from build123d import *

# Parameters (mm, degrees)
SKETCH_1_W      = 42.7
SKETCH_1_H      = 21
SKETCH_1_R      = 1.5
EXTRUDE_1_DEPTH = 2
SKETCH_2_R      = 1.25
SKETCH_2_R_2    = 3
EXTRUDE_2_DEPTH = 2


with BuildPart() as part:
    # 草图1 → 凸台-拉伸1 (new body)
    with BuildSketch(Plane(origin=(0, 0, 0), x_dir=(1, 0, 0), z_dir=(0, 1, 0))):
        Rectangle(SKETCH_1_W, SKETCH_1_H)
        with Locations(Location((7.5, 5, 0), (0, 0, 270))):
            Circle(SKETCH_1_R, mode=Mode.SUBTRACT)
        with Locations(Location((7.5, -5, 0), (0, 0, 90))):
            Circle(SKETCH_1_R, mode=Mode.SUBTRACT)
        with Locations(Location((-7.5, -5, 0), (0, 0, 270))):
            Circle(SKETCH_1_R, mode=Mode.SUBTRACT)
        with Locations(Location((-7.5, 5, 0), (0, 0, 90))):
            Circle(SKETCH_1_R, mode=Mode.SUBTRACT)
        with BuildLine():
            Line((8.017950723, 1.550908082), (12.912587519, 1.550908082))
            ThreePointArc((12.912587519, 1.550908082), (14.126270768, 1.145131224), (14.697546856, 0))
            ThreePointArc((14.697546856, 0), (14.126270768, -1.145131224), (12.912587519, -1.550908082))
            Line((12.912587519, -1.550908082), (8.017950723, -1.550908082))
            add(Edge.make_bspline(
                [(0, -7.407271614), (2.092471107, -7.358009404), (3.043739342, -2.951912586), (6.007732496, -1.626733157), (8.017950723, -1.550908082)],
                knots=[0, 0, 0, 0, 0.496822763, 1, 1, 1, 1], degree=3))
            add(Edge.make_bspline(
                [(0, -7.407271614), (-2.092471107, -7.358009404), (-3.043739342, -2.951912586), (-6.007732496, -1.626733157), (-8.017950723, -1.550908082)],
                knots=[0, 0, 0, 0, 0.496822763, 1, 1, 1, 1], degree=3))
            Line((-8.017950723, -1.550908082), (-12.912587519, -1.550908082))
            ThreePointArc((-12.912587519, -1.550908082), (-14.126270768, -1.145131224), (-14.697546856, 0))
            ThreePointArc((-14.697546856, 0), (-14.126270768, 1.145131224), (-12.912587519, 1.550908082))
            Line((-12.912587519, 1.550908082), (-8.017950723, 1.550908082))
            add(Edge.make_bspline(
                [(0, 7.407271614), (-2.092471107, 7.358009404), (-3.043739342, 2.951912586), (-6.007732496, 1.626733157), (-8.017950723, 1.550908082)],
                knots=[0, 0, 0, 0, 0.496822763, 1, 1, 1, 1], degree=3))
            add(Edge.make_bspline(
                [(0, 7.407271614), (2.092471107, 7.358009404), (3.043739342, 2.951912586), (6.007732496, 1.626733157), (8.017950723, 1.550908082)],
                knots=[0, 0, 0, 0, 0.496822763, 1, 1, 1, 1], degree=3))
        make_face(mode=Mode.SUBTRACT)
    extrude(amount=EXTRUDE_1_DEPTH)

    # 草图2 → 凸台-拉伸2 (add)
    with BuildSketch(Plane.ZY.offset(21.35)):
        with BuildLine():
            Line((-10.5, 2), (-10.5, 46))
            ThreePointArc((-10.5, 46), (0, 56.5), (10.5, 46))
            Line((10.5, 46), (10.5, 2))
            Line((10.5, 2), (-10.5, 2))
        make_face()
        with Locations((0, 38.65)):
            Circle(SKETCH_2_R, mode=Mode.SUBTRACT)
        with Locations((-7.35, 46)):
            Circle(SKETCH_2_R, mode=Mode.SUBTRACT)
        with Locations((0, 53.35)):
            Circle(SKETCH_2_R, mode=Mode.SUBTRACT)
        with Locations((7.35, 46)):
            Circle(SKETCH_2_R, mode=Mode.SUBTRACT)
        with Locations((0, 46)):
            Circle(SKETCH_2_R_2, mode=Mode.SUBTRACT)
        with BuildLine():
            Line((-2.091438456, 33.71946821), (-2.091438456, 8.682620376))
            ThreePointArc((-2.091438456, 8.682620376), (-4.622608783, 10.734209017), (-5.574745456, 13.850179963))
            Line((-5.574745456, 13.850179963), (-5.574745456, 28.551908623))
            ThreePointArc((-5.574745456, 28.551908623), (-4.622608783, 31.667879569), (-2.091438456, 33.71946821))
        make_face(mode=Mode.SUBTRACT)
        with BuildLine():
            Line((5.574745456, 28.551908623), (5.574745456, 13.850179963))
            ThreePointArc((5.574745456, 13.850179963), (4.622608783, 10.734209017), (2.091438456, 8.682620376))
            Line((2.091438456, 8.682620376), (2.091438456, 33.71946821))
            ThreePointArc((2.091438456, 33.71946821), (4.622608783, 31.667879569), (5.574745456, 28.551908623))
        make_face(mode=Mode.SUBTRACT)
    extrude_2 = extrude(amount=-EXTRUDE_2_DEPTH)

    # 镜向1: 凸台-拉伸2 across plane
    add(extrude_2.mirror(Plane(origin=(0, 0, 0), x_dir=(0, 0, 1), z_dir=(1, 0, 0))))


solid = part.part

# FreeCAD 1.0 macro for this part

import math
import FreeCAD as App
import Part
import Sketcher

V = App.Vector
Q = App.Units.Quantity

doc = App.newDocument("Part")
body = doc.addObject("PartDesign::Body", "Body")

sketch1 = body.newObject("Sketcher::SketchObject", "Sketch")
sketch1.AttachmentSupport = (doc.getObject("XZ_Plane"), [""])
sketch1.MapMode = "FlatFace"
sketch1.addGeometry(Part.LineSegment(V(-21.35, -10.5, 0), V(-21.35, 10.5, 0)), False)
sketch1.addGeometry(Part.LineSegment(V(-21.35, 10.5, 0), V(21.35, 10.5, 0)), False)
sketch1.addGeometry(Part.LineSegment(V(21.35, 10.5, 0), V(21.35, -10.5, 0)), False)
sketch1.addGeometry(Part.LineSegment(V(21.35, -10.5, 0), V(-21.35, -10.5, 0)), False)
sketch1.addGeometry(Part.Circle(V(-7.5, 5, 0), V(0, 0, 1), 1.5), False)
sketch1.addGeometry(Part.Circle(V(7.5, 5, 0), V(0, 0, 1), 1.5), False)
sketch1.addGeometry(Part.BSplineCurve([V(0, -7.407272, 0), V(2.092471, -7.358009, 0), V(3.043739, -2.951913, 0), V(6.007732, -1.626733, 0), V(8.017951, -1.550908, 0)], [4, 1, 4], [0, 0.496822763, 1], False, 3, [1, 1, 1, 1, 1], False), False)
sketch1.addGeometry(Part.LineSegment(V(8.017951, -1.550908, 0), V(12.912588, -1.550908, 0)), False)
sketch1.addGeometry(Part.ArcOfCircle(Part.Circle(V(13.029613, 0.117026, 0), V(0, 0, 1), 1.672034), math.radians(-94.013412), math.radians(-4.013412)), False)
sketch1.addGeometry(Part.ArcOfCircle(Part.Circle(V(13.029613, -0.117026, 0), V(0, 0, 1), 1.672034), math.radians(4.013412), math.radians(94.013412)), False)
sketch1.addGeometry(Part.LineSegment(V(12.912588, 1.550908, 0), V(8.017951, 1.550908, 0)), False)
sketch1.addGeometry(Part.BSplineCurve([V(0, 7.407272, 0), V(2.092471, 7.358009, 0), V(3.043739, 2.951913, 0), V(6.007732, 1.626733, 0), V(8.017951, 1.550908, 0)], [4, 1, 4], [0, 0.496822763, 1], False, 3, [1, 1, 1, 1, 1], False), False)
sketch1.addGeometry(Part.BSplineCurve([V(0, 7.407272, 0), V(-2.092471, 7.358009, 0), V(-3.043739, 2.951913, 0), V(-6.007732, 1.626733, 0), V(-8.017951, 1.550908, 0)], [4, 1, 4], [0, 0.496822763, 1], False, 3, [1, 1, 1, 1, 1], False), False)
sketch1.addGeometry(Part.LineSegment(V(-8.017951, 1.550908, 0), V(-12.912588, 1.550908, 0)), False)
sketch1.addGeometry(Part.ArcOfCircle(Part.Circle(V(-13.029613, -0.117026, 0), V(0, 0, 1), 1.672034), math.radians(85.986588), math.radians(175.986588)), False)
sketch1.addGeometry(Part.ArcOfCircle(Part.Circle(V(-13.029613, 0.117026, 0), V(0, 0, 1), 1.672034), math.radians(-175.986588), math.radians(-85.986588)), False)
sketch1.addGeometry(Part.LineSegment(V(-12.912588, -1.550908, 0), V(-8.017951, -1.550908, 0)), False)
sketch1.addGeometry(Part.BSplineCurve([V(0, -7.407272, 0), V(-2.092471, -7.358009, 0), V(-3.043739, -2.951913, 0), V(-6.007732, -1.626733, 0), V(-8.017951, -1.550908, 0)], [4, 1, 4], [0, 0.496822763, 1], False, 3, [1, 1, 1, 1, 1], False), False)
sketch1.addGeometry(Part.Circle(V(-7.5, -5, 0), V(0, 0, 1), 1.5), False)
sketch1.addGeometry(Part.Circle(V(7.5, -5, 0), V(0, 0, 1), 1.5), False)
sketch1.addConstraint(Sketcher.Constraint("Block", 6))
sketch1.addConstraint(Sketcher.Constraint("Block", 11))
sketch1.addConstraint(Sketcher.Constraint("Block", 12))
sketch1.addConstraint(Sketcher.Constraint("Block", 17))
sketch1.addConstraint(Sketcher.Constraint("Coincident", 0, 2, 1, 1))
sketch1.addConstraint(Sketcher.Constraint("Coincident", 1, 2, 2, 1))
sketch1.addConstraint(Sketcher.Constraint("Coincident", 2, 2, 3, 1))
sketch1.addConstraint(Sketcher.Constraint("Coincident", 3, 2, 0, 1))
sketch1.addConstraint(Sketcher.Constraint("Coincident", 6, 2, 7, 1))
sketch1.addConstraint(Sketcher.Constraint("Coincident", 7, 2, 8, 1))
sketch1.addConstraint(Sketcher.Constraint("Coincident", 8, 2, 9, 1))
sketch1.addConstraint(Sketcher.Constraint("Coincident", 9, 2, 10, 1))
sketch1.addConstraint(Sketcher.Constraint("Coincident", 10, 2, 11, 2))
sketch1.addConstraint(Sketcher.Constraint("Coincident", 12, 2, 13, 1))
sketch1.addConstraint(Sketcher.Constraint("Coincident", 13, 2, 14, 1))
sketch1.addConstraint(Sketcher.Constraint("Coincident", 14, 2, 15, 1))
sketch1.addConstraint(Sketcher.Constraint("Coincident", 15, 2, 16, 1))
sketch1.addConstraint(Sketcher.Constraint("Coincident", 16, 2, 17, 2))
sketch1.addConstraint(Sketcher.Constraint("Vertical", 0))
sketch1.addConstraint(Sketcher.Constraint("Horizontal", 1))
sketch1.addConstraint(Sketcher.Constraint("Vertical", 2))
sketch1.addConstraint(Sketcher.Constraint("Horizontal", 3))
sketch1.addConstraint(Sketcher.Constraint("Horizontal", 7))
sketch1.addConstraint(Sketcher.Constraint("Horizontal", 10))
sketch1.addConstraint(Sketcher.Constraint("Horizontal", 13))
sketch1.addConstraint(Sketcher.Constraint("Horizontal", 16))
sketch1.addConstraint(Sketcher.Constraint("Equal", 4, 5))
sketch1.addConstraint(Sketcher.Constraint("Equal", 8, 9))
sketch1.addConstraint(Sketcher.Constraint("Equal", 9, 14))
sketch1.addConstraint(Sketcher.Constraint("Equal", 14, 15))
sketch1.addConstraint(Sketcher.Constraint("Equal", 5, 18))
sketch1.addConstraint(Sketcher.Constraint("Equal", 18, 19))
sketch1.addConstraint(Sketcher.Constraint("Symmetric", 8, 3, 14, 3, -1, 1))
sketch1.addConstraint(Sketcher.Constraint("Symmetric", 9, 3, 15, 3, -1, 1))
sketch1.addConstraint(Sketcher.Constraint("Symmetric", 5, 3, 18, 3, -1, 1))
sketch1.addConstraint(Sketcher.Constraint("Symmetric", 4, 3, 19, 3, -1, 1))
sketch1.addConstraint(Sketcher.Constraint("Symmetric", 0, 2, 2, 2, -1, 1))
sketch1.addConstraint(Sketcher.Constraint("Symmetric", 4, 3, 5, 3, -2))
sketch1.addConstraint(Sketcher.Constraint("Symmetric", 9, 3, 14, 3, -2))
sketch1.addConstraint(Sketcher.Constraint("Diameter", 4, Q("3 mm")))
sketch1.addConstraint(Sketcher.Constraint("DistanceY", 0, 1, 0, 2, Q("21 mm")))
sketch1.addConstraint(Sketcher.Constraint("DistanceX", 1, 1, 1, 2, Q("42.7 mm")))
sketch1.addConstraint(Sketcher.Constraint("DistanceY", -1, 1, 4, 3, Q("5 mm")))
sketch1.addConstraint(Sketcher.Constraint("DistanceX", 4, 3, 5, 3, Q("15 mm")))
sketch1.addConstraint(Sketcher.Constraint("Radius", 8, Q("1.672034 mm")))
sketch1.addConstraint(Sketcher.Constraint("DistanceX", 7, 1, 7, 2, Q("4.894637 mm")))
sketch1.addConstraint(Sketcher.Constraint("DistanceY", 9, 3, 8, 3, Q("0.234051 mm")))
pad1 = body.newObject("PartDesign::Pad", "Pad")
pad1.Profile = sketch1
pad1.Length = 2
pad1.Reversed = True

sketch2 = body.newObject("Sketcher::SketchObject", "Sketch001")
sketch2.AttachmentSupport = (doc.getObject("YZ_Plane"), [""])
sketch2.MapMode = "FlatFace"
sketch2.AttachmentOffset = App.Placement(V(0, 0, -21.35), App.Rotation())
sketch2.addGeometry(Part.LineSegment(V(46, -10.5, 0), V(2, -10.5, 0)), False)
sketch2.addGeometry(Part.LineSegment(V(2, -10.5, 0), V(2, 10.5, 0)), False)
sketch2.addGeometry(Part.LineSegment(V(2, 10.5, 0), V(46, 10.5, 0)), False)
sketch2.addGeometry(Part.ArcOfCircle(Part.Circle(V(46, 0, 0), V(0, 0, 1), 10.5), math.radians(-90), math.radians(90)), False)
sketch2.addGeometry(Part.LineSegment(V(28.6, 5.6, 0), V(13.9, 5.6, 0)), False)
sketch2.addGeometry(Part.ArcOfCircle(Part.Circle(V(13.9, 0, 0), V(0, 0, 1), 5.6), math.radians(90), math.radians(158)), False)
sketch2.addGeometry(Part.LineSegment(V(8.7, 2.1, 0), V(33.7, 2.1, 0)), False)
sketch2.addGeometry(Part.ArcOfCircle(Part.Circle(V(28.6, 0, 0), V(0, 0, 1), 5.6), math.radians(22), math.radians(90)), False)
sketch2.addGeometry(Part.LineSegment(V(33.7, -2.1, 0), V(8.7, -2.1, 0)), False)
sketch2.addGeometry(Part.ArcOfCircle(Part.Circle(V(13.9, 0, 0), V(0, 0, 1), 5.6), math.radians(-158), math.radians(-90)), False)
sketch2.addGeometry(Part.LineSegment(V(13.9, -5.6, 0), V(28.6, -5.6, 0)), False)
sketch2.addGeometry(Part.ArcOfCircle(Part.Circle(V(28.6, 0, 0), V(0, 0, 1), 5.6), math.radians(-90), math.radians(-22)), False)
sketch2.addGeometry(Part.Circle(V(46, 7.3, 0), V(0, 0, 1), 1.2), False)
sketch2.addGeometry(Part.Circle(V(38.6, 0, 0), V(0, 0, 1), 1.2), False)
sketch2.addGeometry(Part.Circle(V(46, 0, 0), V(0, 0, 1), 3), False)
sketch2.addGeometry(Part.Circle(V(53.4, 0, 0), V(0, 0, 1), 1.2), False)
sketch2.addGeometry(Part.Circle(V(46, -7.3, 0), V(0, 0, 1), 1.2), False)
sketch2.addConstraint(Sketcher.Constraint("Coincident", 0, 2, 1, 1))
sketch2.addConstraint(Sketcher.Constraint("Coincident", 1, 2, 2, 1))
sketch2.addConstraint(Sketcher.Constraint("Tangent", 2, 2, 3, 2))
sketch2.addConstraint(Sketcher.Constraint("Tangent", 3, 1, 0, 1))
sketch2.addConstraint(Sketcher.Constraint("Tangent", 4, 2, 5, 1))
sketch2.addConstraint(Sketcher.Constraint("Coincident", 5, 2, 6, 1))
sketch2.addConstraint(Sketcher.Constraint("Coincident", 6, 2, 7, 1))
sketch2.addConstraint(Sketcher.Constraint("Tangent", 7, 2, 4, 1))
sketch2.addConstraint(Sketcher.Constraint("Coincident", 8, 2, 9, 1))
sketch2.addConstraint(Sketcher.Constraint("Tangent", 9, 2, 10, 1))
sketch2.addConstraint(Sketcher.Constraint("Tangent", 10, 2, 11, 1))
sketch2.addConstraint(Sketcher.Constraint("Coincident", 11, 2, 8, 1))
sketch2.addConstraint(Sketcher.Constraint("Horizontal", 0))
sketch2.addConstraint(Sketcher.Constraint("Vertical", 1))
sketch2.addConstraint(Sketcher.Constraint("Horizontal", 2))
sketch2.addConstraint(Sketcher.Constraint("Horizontal", 4))
sketch2.addConstraint(Sketcher.Constraint("Horizontal", 6))
sketch2.addConstraint(Sketcher.Constraint("Horizontal", 8))
sketch2.addConstraint(Sketcher.Constraint("Horizontal", 10))
sketch2.addConstraint(Sketcher.Constraint("Coincident", 9, 3, 5, 3))
sketch2.addConstraint(Sketcher.Constraint("Coincident", 11, 3, 7, 3))
sketch2.addConstraint(Sketcher.Constraint("Coincident", 14, 3, 3, 3))
sketch2.addConstraint(Sketcher.Constraint("Equal", 5, 7))
sketch2.addConstraint(Sketcher.Constraint("Equal", 7, 9))
sketch2.addConstraint(Sketcher.Constraint("Equal", 12, 13))
sketch2.addConstraint(Sketcher.Constraint("Equal", 13, 15))
sketch2.addConstraint(Sketcher.Constraint("Equal", 15, 16))
sketch2.addConstraint(Sketcher.Constraint("Symmetric", 12, 3, 16, 3, -1))
sketch2.addConstraint(Sketcher.Constraint("Symmetric", 5, 2, 8, 2, -1))
sketch2.addConstraint(Sketcher.Constraint("PointOnObject", 3, 3, -1))
sketch2.addConstraint(Sketcher.Constraint("PointOnObject", 13, 3, -1))
sketch2.addConstraint(Sketcher.Constraint("PointOnObject", 15, 3, -1))
sketch2.addConstraint(Sketcher.Constraint("Vertical", 3, 3, 12, 3))
sketch2.addConstraint(Sketcher.Constraint("Diameter", 14, Q("6 mm")))
sketch2.addConstraint(Sketcher.Constraint("Diameter", 12, Q("2.5 mm")))
sketch2.addConstraint(Sketcher.Constraint("Radius", 3, Q("10.5 mm")))
sketch2.addConstraint(Sketcher.Constraint("DistanceX", 0, 2, 0, 1, Q("44 mm")))
sketch2.addConstraint(Sketcher.Constraint("DistanceX", -1, 1, 3, 3, Q("46 mm")))
sketch2.addConstraint(Sketcher.Constraint("DistanceX", 13, 3, 15, 3, Q("14.7 mm")))
sketch2.addConstraint(Sketcher.Constraint("DistanceY", 16, 3, 12, 3, Q("14.7 mm")))
sketch2.addConstraint(Sketcher.Constraint("DistanceX", -1, 1, 13, 3, Q("38.65 mm")))
sketch2.addConstraint(Sketcher.Constraint("Radius", 5, Q("5.574745 mm")))
sketch2.addConstraint(Sketcher.Constraint("DistanceX", 4, 2, 4, 1, Q("14.701729 mm")))
sketch2.addConstraint(Sketcher.Constraint("DistanceX", 6, 1, 6, 2, Q("25.036848 mm")))
sketch2.addConstraint(Sketcher.Constraint("DistanceX", -1, 1, 5, 3, Q("13.85018 mm")))
pad2 = body.newObject("PartDesign::Pad", "Pad001")
pad2.Profile = sketch2
pad2.Length = 2
doc.recompute()

mirrored = body.newObject("PartDesign::Mirrored", "Mirrored")
mirrored.Originals = [pad2]
mirrored.MirrorPlane = (doc.getObject("YZ_Plane"), [""])
body.Tip = mirrored

doc.recompute()
